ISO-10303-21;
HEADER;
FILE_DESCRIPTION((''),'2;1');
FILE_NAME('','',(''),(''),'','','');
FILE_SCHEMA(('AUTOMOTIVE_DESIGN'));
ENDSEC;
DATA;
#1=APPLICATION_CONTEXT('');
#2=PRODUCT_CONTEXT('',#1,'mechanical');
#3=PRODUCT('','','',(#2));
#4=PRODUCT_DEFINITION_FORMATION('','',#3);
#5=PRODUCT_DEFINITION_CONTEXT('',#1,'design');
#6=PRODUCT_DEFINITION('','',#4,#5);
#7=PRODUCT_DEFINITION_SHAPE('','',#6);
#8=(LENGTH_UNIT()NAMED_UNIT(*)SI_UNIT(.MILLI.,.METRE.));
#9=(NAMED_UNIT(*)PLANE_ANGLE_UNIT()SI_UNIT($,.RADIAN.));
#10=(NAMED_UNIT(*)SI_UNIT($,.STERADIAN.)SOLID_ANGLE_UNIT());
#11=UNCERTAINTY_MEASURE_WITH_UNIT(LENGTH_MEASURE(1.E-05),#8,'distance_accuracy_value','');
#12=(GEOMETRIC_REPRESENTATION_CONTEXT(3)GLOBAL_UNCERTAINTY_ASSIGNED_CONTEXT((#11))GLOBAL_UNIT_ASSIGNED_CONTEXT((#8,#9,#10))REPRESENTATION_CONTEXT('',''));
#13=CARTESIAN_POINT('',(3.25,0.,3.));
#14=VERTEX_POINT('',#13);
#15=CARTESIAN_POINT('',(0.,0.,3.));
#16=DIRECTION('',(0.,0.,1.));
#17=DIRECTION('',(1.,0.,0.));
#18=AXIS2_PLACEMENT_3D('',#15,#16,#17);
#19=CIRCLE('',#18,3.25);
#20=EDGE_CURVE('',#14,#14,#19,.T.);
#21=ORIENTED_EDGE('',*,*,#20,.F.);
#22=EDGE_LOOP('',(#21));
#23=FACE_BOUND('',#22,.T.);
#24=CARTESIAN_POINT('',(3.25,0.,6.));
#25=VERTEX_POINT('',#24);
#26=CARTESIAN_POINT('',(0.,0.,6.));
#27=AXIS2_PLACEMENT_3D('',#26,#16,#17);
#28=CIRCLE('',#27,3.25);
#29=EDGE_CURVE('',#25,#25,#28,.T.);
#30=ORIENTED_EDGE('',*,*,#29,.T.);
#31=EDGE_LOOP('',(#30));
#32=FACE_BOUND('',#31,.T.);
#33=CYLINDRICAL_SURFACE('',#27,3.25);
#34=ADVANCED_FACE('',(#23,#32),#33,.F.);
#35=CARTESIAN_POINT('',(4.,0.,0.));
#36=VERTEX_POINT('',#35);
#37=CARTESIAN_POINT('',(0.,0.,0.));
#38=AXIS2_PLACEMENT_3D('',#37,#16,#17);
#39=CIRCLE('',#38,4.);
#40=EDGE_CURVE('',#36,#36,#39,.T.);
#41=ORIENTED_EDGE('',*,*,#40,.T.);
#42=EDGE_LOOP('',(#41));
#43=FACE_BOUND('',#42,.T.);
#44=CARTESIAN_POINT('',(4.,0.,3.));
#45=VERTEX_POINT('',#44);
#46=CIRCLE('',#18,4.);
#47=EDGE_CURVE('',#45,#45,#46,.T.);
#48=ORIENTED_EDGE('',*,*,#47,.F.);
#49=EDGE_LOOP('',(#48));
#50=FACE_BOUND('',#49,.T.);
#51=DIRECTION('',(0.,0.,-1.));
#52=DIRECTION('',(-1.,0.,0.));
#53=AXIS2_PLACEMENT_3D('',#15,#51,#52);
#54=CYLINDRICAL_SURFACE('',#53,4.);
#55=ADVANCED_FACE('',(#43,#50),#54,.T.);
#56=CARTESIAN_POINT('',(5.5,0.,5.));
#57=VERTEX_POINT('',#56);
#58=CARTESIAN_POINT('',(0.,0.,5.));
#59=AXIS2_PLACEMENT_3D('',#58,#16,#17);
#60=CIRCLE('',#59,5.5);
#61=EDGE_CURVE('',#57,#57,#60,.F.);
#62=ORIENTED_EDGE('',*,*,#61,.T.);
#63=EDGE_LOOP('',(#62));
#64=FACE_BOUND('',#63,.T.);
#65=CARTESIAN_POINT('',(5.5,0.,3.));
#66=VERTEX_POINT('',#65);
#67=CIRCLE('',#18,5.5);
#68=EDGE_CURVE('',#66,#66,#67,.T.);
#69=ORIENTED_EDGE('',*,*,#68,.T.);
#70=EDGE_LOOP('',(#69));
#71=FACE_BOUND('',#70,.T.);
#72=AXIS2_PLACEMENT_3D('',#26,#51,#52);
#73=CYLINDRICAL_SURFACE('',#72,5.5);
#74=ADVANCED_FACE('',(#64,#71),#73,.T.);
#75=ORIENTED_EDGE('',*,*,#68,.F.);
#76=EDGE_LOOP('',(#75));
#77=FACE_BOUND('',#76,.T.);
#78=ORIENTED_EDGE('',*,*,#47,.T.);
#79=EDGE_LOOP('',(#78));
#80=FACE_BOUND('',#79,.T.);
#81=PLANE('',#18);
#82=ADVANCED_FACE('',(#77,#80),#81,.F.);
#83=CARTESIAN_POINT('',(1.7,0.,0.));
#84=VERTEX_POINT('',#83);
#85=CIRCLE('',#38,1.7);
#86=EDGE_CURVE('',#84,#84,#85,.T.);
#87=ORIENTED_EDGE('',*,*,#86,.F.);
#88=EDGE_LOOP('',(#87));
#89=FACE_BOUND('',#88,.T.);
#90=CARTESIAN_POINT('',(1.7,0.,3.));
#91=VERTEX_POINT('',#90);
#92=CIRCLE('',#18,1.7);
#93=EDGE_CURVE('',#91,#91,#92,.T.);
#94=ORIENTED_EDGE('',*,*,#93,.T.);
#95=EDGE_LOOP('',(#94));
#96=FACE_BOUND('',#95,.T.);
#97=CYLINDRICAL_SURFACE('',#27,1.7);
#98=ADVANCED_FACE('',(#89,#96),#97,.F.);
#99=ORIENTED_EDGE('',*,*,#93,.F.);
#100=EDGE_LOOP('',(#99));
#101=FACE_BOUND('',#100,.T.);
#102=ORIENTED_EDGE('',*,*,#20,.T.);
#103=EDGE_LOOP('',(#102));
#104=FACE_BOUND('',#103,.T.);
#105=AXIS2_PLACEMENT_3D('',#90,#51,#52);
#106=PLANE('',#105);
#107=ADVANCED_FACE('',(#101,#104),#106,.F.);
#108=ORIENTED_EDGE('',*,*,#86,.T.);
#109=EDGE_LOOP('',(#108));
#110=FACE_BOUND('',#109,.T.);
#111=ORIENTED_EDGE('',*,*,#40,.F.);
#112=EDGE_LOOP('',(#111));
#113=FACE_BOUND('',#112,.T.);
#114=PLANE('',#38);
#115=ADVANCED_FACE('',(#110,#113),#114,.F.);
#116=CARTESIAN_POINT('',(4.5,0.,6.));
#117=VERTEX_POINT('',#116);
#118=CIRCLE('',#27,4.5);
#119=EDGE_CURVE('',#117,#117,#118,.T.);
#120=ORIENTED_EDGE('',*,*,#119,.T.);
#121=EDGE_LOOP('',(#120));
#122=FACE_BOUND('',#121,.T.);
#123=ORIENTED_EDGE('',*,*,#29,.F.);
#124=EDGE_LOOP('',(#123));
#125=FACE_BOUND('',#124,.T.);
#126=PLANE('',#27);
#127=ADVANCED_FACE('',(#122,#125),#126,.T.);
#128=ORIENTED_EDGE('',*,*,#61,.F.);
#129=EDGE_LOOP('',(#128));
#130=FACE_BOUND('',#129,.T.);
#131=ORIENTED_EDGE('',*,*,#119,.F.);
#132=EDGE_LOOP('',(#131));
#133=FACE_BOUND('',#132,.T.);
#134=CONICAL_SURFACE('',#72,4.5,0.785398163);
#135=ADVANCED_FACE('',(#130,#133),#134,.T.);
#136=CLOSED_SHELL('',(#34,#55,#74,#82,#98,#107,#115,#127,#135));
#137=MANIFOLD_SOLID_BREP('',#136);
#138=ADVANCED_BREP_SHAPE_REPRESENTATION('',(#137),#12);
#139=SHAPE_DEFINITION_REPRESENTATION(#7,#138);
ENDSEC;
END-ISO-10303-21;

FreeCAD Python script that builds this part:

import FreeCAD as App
import Part
import Sketcher

V = App.Vector
Q = App.Units.Quantity


def edges_at(feature, points):
    """Names of the edges that pass closest to the given points."""
    edges = feature.Shape.Edges
    near = lambda p: min(range(len(edges)), key=lambda i: edges[i].distToShape(Part.Vertex(*p))[0])
    return sorted({f"Edge{near(p) + 1}" for p in points})

doc = App.newDocument("Part")
body = doc.addObject("PartDesign::Body", "Body")

sketch1 = body.newObject("Sketcher::SketchObject", "Sketch")
sketch1.AttachmentSupport = (doc.getObject("XY_Plane"), [""])
sketch1.MapMode = "FlatFace"
sketch1.addGeometry(Part.Circle(V(0, 0, 0), V(0, 0, 1), 4), False)
sketch1.addConstraint([
    Sketcher.Constraint("Coincident", 0, 3, -1, 1),
    Sketcher.Constraint("Diameter", 0, Q("8 mm")),
])
pad1 = body.newObject("PartDesign::Pad", "Pad")
pad1.Profile = sketch1
pad1.Length = 3

sketch2 = body.newObject("Sketcher::SketchObject", "Sketch001")
sketch2.AttachmentSupport = (doc.getObject("XY_Plane"), [""])
sketch2.MapMode = "FlatFace"
sketch2.AttachmentOffset = App.Placement(V(0, 0, 3), App.Rotation())
sketch2.addGeometry(Part.Circle(V(0, 0, 0), V(0, 0, 1), 5.5), False)
sketch2.addConstraint([
    Sketcher.Constraint("Coincident", 0, 3, -1, 1),
    Sketcher.Constraint("Diameter", 0, Q("11 mm")),
])
pad2 = body.newObject("PartDesign::Pad", "Pad001")
pad2.Profile = sketch2
pad2.Length = 3

sketch3 = body.newObject("Sketcher::SketchObject", "Sketch002")
sketch3.AttachmentSupport = (doc.getObject("XY_Plane"), [""])
sketch3.MapMode = "FlatFace"
sketch3.AttachmentOffset = App.Placement(V(0, 0, 6), App.Rotation())
sketch3.addGeometry(Part.Circle(V(0, 0, 0), V(0, 0, 1), 1.7), False)
sketch3.addConstraint([
    Sketcher.Constraint("Coincident", 0, 3, -1, 1),
    Sketcher.Constraint("Diameter", 0, Q("3.4 mm")),
])
doc.recompute()
hole = body.newObject("PartDesign::Hole", "Hole")
hole.Profile = sketch3
hole.ThreadType = "None"
hole.Diameter = 3.4
hole.DepthType = "ThroughAll"
hole.HoleCutType = "Counterbore"
hole.HoleCutDiameter = 6.5
hole.HoleCutDepth = 3
doc.recompute()

chamfer = body.newObject("PartDesign::Chamfer", "Chamfer")
chamfer.Base = (hole, edges_at(hole, [(-5.5, 0, 6)]))
chamfer.Size = 1

doc.recompute()
